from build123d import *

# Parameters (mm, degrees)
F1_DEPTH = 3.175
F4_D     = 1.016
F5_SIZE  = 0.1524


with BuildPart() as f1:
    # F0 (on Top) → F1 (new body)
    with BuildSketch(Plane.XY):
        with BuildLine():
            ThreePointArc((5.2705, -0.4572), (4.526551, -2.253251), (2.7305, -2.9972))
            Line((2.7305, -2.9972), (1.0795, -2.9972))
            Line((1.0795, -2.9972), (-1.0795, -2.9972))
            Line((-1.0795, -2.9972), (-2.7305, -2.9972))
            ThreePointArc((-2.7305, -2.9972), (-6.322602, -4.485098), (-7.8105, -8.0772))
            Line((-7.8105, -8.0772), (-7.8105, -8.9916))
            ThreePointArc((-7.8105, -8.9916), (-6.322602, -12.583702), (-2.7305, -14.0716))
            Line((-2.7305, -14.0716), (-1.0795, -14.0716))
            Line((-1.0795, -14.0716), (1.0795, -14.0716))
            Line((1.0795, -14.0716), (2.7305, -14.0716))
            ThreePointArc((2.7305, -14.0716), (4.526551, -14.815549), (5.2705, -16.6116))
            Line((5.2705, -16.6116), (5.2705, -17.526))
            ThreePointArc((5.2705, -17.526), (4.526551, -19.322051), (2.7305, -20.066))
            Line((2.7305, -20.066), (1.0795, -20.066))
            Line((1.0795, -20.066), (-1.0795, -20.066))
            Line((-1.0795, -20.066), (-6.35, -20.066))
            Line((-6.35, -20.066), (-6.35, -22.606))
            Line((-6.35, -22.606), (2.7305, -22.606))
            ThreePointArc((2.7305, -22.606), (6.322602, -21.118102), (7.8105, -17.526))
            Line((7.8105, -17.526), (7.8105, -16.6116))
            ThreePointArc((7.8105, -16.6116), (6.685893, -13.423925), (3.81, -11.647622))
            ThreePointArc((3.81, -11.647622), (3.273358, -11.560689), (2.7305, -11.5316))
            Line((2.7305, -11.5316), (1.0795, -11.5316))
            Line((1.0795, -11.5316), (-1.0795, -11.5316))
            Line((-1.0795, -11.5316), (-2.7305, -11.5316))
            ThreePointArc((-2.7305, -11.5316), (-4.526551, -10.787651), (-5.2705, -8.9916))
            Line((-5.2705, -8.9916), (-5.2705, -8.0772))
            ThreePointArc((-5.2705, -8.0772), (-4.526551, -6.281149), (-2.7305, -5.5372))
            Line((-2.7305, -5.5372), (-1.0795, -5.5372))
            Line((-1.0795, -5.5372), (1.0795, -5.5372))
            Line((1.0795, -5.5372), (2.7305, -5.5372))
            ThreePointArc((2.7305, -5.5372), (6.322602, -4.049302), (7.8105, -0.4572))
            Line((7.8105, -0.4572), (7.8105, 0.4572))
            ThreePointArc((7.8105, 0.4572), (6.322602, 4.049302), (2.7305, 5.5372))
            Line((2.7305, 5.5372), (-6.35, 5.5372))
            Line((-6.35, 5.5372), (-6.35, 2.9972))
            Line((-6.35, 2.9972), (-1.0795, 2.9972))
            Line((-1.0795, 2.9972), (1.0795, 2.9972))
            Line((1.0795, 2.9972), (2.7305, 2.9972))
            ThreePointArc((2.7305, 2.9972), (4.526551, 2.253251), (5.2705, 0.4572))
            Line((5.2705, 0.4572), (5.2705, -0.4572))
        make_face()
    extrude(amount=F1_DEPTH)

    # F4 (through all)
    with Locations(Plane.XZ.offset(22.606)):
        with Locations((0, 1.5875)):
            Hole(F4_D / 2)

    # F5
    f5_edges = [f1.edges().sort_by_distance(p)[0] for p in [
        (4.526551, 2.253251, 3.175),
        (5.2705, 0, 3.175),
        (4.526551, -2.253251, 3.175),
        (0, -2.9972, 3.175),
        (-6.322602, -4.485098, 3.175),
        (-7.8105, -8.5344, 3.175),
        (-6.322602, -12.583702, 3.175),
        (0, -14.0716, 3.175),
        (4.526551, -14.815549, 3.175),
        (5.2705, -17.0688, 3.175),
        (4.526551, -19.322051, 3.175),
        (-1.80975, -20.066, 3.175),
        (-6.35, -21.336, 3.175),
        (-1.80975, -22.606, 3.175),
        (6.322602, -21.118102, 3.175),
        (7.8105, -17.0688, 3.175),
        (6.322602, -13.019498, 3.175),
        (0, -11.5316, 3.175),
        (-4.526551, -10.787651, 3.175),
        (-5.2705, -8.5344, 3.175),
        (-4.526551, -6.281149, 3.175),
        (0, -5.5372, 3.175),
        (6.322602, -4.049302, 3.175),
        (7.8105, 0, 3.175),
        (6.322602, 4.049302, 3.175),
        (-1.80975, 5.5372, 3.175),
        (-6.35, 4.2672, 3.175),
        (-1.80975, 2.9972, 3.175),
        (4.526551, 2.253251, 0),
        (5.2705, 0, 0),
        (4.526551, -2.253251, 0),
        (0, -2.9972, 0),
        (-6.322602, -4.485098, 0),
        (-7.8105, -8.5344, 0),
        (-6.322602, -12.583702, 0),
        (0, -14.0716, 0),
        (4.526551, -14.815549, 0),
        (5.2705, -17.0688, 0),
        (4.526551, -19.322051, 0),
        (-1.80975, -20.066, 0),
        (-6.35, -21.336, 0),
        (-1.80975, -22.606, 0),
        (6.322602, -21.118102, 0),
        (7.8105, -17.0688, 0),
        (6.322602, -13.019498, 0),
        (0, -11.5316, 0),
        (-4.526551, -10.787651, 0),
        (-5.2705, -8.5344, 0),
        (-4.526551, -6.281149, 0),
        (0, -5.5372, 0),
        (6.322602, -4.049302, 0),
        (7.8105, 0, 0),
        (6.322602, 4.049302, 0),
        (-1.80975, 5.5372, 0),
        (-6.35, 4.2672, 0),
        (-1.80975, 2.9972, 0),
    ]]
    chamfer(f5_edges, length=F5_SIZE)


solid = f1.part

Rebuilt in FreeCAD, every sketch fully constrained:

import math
import FreeCAD as App
import Part
import Sketcher
Q = App.Units.Quantity


def edges_at(feature, points):
    """Names of the edges that pass closest to the given points."""
    edges = feature.Shape.Edges
    near = lambda p: min(range(len(edges)), key=lambda i: edges[i].distToShape(Part.Vertex(*p))[0])
    return sorted({f"Edge{near(p) + 1}" for p in points})

doc = App.newDocument("Part")
params = doc.addObject("Spreadsheet::Sheet", "Params")
for row, (alias, value) in enumerate([
    ("sketch1_radius", "0.1 in"),
    ("sketch1_radius2", "0.2000001 in"),
    ("sketch1_radius3", "0.2000001 in"),
    ("sketch1_radius4", "0.1 in"),
    ("sketch1_radius5", "0.1 in"),
    ("pad1_length", "0.125 in"),
    ("sketch2_diameter", "0.04 in"),
    ("hole_diameter", "0.04 in"),
    ("chamfer_size", "0.006 in"),
], start=1):
    params.set(f"A{row}", alias)
    params.set(f"B{row}", "=" + value)
    params.setAlias(f"B{row}", alias)

body = doc.addObject("PartDesign::Body", "Body")

# Sketch on XY plane
sketch1 = body.newObject("Sketcher::SketchObject", "Sketch")
sketch1.AttachmentSupport = (doc.getObject("XY_Plane"), [""])
sketch1.MapMode = "FlatFace"
sketch1.addGeometry([
    Part.ArcOfCircle(Part.Circle(App.Vector(2.730499, -0.457199, 0), App.Vector(0, 0, 1), 2.540001), math.radians(-89.999983), math.radians(-0.000017)),  # 0
    Part.LineSegment(App.Vector(2.7305, -2.9972, 0), App.Vector(-2.7305, -2.9972, 0)),  # 1
    Part.ArcOfCircle(Part.Circle(App.Vector(-2.730498, -8.077202, 0), App.Vector(0, 0, 1), 5.080002), math.radians(90.000017), math.radians(179.999983)),  # 2
    Part.LineSegment(App.Vector(-7.8105, -8.0772, 0), App.Vector(-7.8105, -8.9916, 0)),  # 3
    Part.ArcOfCircle(Part.Circle(App.Vector(-2.730498, -8.991598, 0), App.Vector(0, 0, 1), 5.080002), math.radians(-179.999983), math.radians(-90.000017)),  # 4
    Part.LineSegment(App.Vector(-2.7305, -14.0716, 0), App.Vector(2.7305, -14.0716, 0)),  # 5
    Part.ArcOfCircle(Part.Circle(App.Vector(2.730499, -16.611601, 0), App.Vector(0, 0, 1), 2.540001), math.radians(0.000017), math.radians(89.999983)),  # 6
    Part.LineSegment(App.Vector(5.2705, -16.6116, 0), App.Vector(5.2705, -17.526, 0)),  # 7
    Part.ArcOfCircle(Part.Circle(App.Vector(2.730499, -17.525999, 0), App.Vector(0, 0, 1), 2.540001), math.radians(-89.999983), math.radians(-0.000017)),  # 8
    Part.LineSegment(App.Vector(2.7305, -20.066, 0), App.Vector(-6.35, -20.066, 0)),  # 9
    Part.LineSegment(App.Vector(-6.35, -20.066, 0), App.Vector(-6.35, -22.606, 0)),  # 10
    Part.LineSegment(App.Vector(-6.35, -22.606, 0), App.Vector(2.7305, -22.606, 0)),  # 11
    Part.ArcOfCircle(Part.Circle(App.Vector(2.730498, -17.525998, 0), App.Vector(0, 0, 1), 5.080002), math.radians(-89.999983), math.radians(-0.000017)),  # 12
    Part.LineSegment(App.Vector(7.8105, -17.526, 0), App.Vector(7.8105, -16.6116, 0)),  # 13
    Part.ArcOfCircle(Part.Circle(App.Vector(2.730502, -16.611598, 0), App.Vector(0, 0, 1), 5.079998), math.radians(-0.00002), math.radians(77.731123)),  # 14
    Part.ArcOfCircle(Part.Circle(App.Vector(2.730495, -16.611637, 0), App.Vector(0, 0, 1), 5.080037), math.radians(77.731134), math.radians(89.999944)),  # 15
    Part.LineSegment(App.Vector(2.7305, -11.5316, 0), App.Vector(-2.7305, -11.5316, 0)),  # 16
    Part.ArcOfCircle(Part.Circle(App.Vector(-2.730499, -8.991599, 0), App.Vector(0, 0, 1), 2.540001), math.radians(-179.999983), math.radians(-90.000017)),  # 17
    Part.LineSegment(App.Vector(-5.2705, -8.9916, 0), App.Vector(-5.2705, -8.0772, 0)),  # 18
    Part.ArcOfCircle(Part.Circle(App.Vector(-2.730499, -8.077201, 0), App.Vector(0, 0, 1), 2.540001), math.radians(90.000017), math.radians(179.999983)),  # 19
    Part.LineSegment(App.Vector(-2.7305, -5.5372, 0), App.Vector(2.7305, -5.5372, 0)),  # 20
    Part.ArcOfCircle(Part.Circle(App.Vector(2.730498, -0.457198, 0), App.Vector(0, 0, 1), 5.080002), math.radians(-89.999983), math.radians(-0.000017)),  # 21
    Part.LineSegment(App.Vector(7.8105, -0.4572, 0), App.Vector(7.8105, 0.4572, 0)),  # 22
    Part.ArcOfCircle(Part.Circle(App.Vector(2.730498, 0.457198, 0), App.Vector(0, 0, 1), 5.080002), math.radians(0.000017), math.radians(89.999983)),  # 23
    Part.LineSegment(App.Vector(2.7305, 5.5372, 0), App.Vector(-6.35, 5.5372, 0)),  # 24
    Part.LineSegment(App.Vector(-6.35, 5.5372, 0), App.Vector(-6.35, 2.9972, 0)),  # 25
    Part.LineSegment(App.Vector(-6.35, 2.9972, 0), App.Vector(2.7305, 2.9972, 0)),  # 26
    Part.ArcOfCircle(Part.Circle(App.Vector(2.730499, 0.457199, 0), App.Vector(0, 0, 1), 2.540001), math.radians(0.000017), math.radians(89.999983)),  # 27
    Part.LineSegment(App.Vector(5.2705, 0.4572, 0), App.Vector(5.2705, -0.4572, 0)),  # 28
], False)
sketch1.addConstraint([
    Sketcher.Constraint("Coincident", 0, 1, 1, 1),
    Sketcher.Constraint("Coincident", 1, 2, 2, 1),
    Sketcher.Constraint("Coincident", 2, 2, 3, 1),
    Sketcher.Constraint("Coincident", 3, 2, 4, 1),
    Sketcher.Constraint("Coincident", 4, 2, 5, 1),
    Sketcher.Constraint("Coincident", 5, 2, 6, 2),
    Sketcher.Constraint("Coincident", 6, 1, 7, 1),
    Sketcher.Constraint("Coincident", 7, 2, 8, 2),
    Sketcher.Constraint("Coincident", 8, 1, 9, 1),
    Sketcher.Constraint("Coincident", 9, 2, 10, 1),
    Sketcher.Constraint("Coincident", 10, 2, 11, 1),
    Sketcher.Constraint("Coincident", 11, 2, 12, 1),
    Sketcher.Constraint("Coincident", 12, 2, 13, 1),
    Sketcher.Constraint("Coincident", 13, 2, 14, 1),
    Sketcher.Constraint("Coincident", 14, 2, 15, 1),
    Sketcher.Constraint("Coincident", 15, 2, 16, 1),
    Sketcher.Constraint("Coincident", 16, 2, 17, 2),
    Sketcher.Constraint("Coincident", 17, 1, 18, 1),
    Sketcher.Constraint("Coincident", 18, 2, 19, 2),
    Sketcher.Constraint("Coincident", 19, 1, 20, 1),
    Sketcher.Constraint("Coincident", 20, 2, 21, 1),
    Sketcher.Constraint("Coincident", 21, 2, 22, 1),
    Sketcher.Constraint("Coincident", 22, 2, 23, 1),
    Sketcher.Constraint("Coincident", 23, 2, 24, 1),
    Sketcher.Constraint("Coincident", 24, 2, 25, 1),
    Sketcher.Constraint("Coincident", 25, 2, 26, 1),
    Sketcher.Constraint("Coincident", 26, 2, 27, 2),
    Sketcher.Constraint("Coincident", 27, 1, 28, 1),
    Sketcher.Constraint("Coincident", 28, 2, 0, 2),
    Sketcher.Constraint("Horizontal", 1),
    Sketcher.Constraint("Vertical", 3),
    Sketcher.Constraint("Horizontal", 5),
    Sketcher.Constraint("Vertical", 7),
    Sketcher.Constraint("Horizontal", 9),
    Sketcher.Constraint("Vertical", 10),
    Sketcher.Constraint("Horizontal", 11),
    Sketcher.Constraint("Vertical", 13),
    Sketcher.Constraint("Horizontal", 16),
    Sketcher.Constraint("Vertical", 18),
    Sketcher.Constraint("Horizontal", 20),
    Sketcher.Constraint("Vertical", 22),
    Sketcher.Constraint("Horizontal", 24),
    Sketcher.Constraint("Vertical", 25),
    Sketcher.Constraint("Horizontal", 26),
    Sketcher.Constraint("Vertical", 28),
    Sketcher.Constraint("Coincident", 12, 3, 8, 3),
    Sketcher.Constraint("Coincident", 14, 3, 6, 3),
    Sketcher.Constraint("Coincident", 17, 3, 4, 3),
    Sketcher.Constraint("Coincident", 19, 3, 2, 3),
    Sketcher.Constraint("Coincident", 21, 3, 0, 3),
    Sketcher.Constraint("Coincident", 27, 3, 23, 3),
    Sketcher.Constraint("Radius", 0, Q("0.1 in")),
    Sketcher.Constraint("Radius", 2, Q("0.2000001 in")),
    Sketcher.Constraint("Radius", 4, Q("0.2000001 in")),
    Sketcher.Constraint("Radius", 6, Q("0.1 in")),
    Sketcher.Constraint("Radius", 8, Q("0.1 in")),
    Sketcher.Constraint("Radius", 12, Q("0.2000001 in")),
    Sketcher.Constraint("Radius", 17, Q("0.1 in")),
    Sketcher.Constraint("Radius", 23, Q("0.2000001 in")),
    Sketcher.Constraint("DistanceX", 2, 2, 1, 2, Q("0.2 in")),
    Sketcher.Constraint("DistanceY", 2, 2, 1, 2, Q("0.2 in")),
    Sketcher.Constraint("DistanceX", 15, 3, 6, 1, Q("0.1000002 in")),
    Sketcher.Constraint("DistanceX", 11, 2, 7, 2, Q("0.1 in")),
    Sketcher.Constraint("DistanceY", 11, 2, 7, 2, Q("0.2 in")),
    Sketcher.Constraint("DistanceX", 0, 1, 21, 2, Q("0.2 in")),
    Sketcher.Constraint("DistanceY", 0, 1, 21, 2, Q("0.1 in")),
    Sketcher.Constraint("DistanceX", 23, 2, 22, 2, Q("0.2 in")),
    Sketcher.Constraint("DistanceY", 22, 2, 23, 2, Q("0.2 in")),
    Sketcher.Constraint("DistanceX", 1, 2, 1, 1, Q("0.215 in")),
    Sketcher.Constraint("DistanceX", 5, 1, 5, 2, Q("0.215 in")),
    Sketcher.Constraint("DistanceX", 16, 2, 16, 1, Q("0.215 in")),
    Sketcher.Constraint("DistanceX", 20, 1, 20, 2, Q("0.215 in")),
    Sketcher.Constraint("DistanceY", 3, 2, 3, 1, Q("0.036 in")),
    Sketcher.Constraint("DistanceY", 7, 2, 7, 1, Q("0.036 in")),
    Sketcher.Constraint("DistanceY", 13, 1, 13, 2, Q("0.036 in")),
    Sketcher.Constraint("DistanceY", 18, 1, 18, 2, Q("0.036 in")),
    Sketcher.Constraint("DistanceY", 22, 1, 22, 2, Q("0.036 in")),
    Sketcher.Constraint("DistanceY", 28, 2, 28, 1, Q("0.036 in")),
    Sketcher.Constraint("DistanceY", 8, 3, -1, 1, Q("0.69 in")),
    Sketcher.Constraint("DistanceX", 9, 2, -1, 1, Q("0.25 in")),
    Sketcher.Constraint("DistanceY", 12, 2, -1, 1, Q("0.69 in")),
    Sketcher.Constraint("DistanceX", -1, 1, 14, 2, Q("0.15 in")),
    Sketcher.Constraint("DistanceX", 24, 2, -1, 1, Q("0.25 in")),
    Sketcher.Constraint("DistanceX", 9, 2, 9, 1, Q("0.3575 in")),
    Sketcher.Constraint("DistanceX", 11, 1, 11, 2, Q("0.3575 in")),
    Sketcher.Constraint("DistanceX", 24, 2, 24, 1, Q("0.3575 in")),
    Sketcher.Constraint("DistanceX", 26, 1, 26, 2, Q("0.3575 in")),
    Sketcher.Constraint("DistanceY", 0, 3, -1, 1, Q("0.018 in")),
    Sketcher.Constraint("DistanceY", 4, 3, -1, 1, Q("0.3539999 in")),
    Sketcher.Constraint("DistanceY", 17, 1, -1, 1, Q("0.354 in")),
    Sketcher.Constraint("DistanceY", -1, 1, 27, 1, Q("0.018 in")),
    Sketcher.Constraint("DistanceX", 4, 2, 6, 3, Q("0.215 in")),
    Sketcher.Constraint("DistanceX", -1, 1, 15, 2, Q("0.1075 in")),
    Sketcher.Constraint("DistanceX", 19, 1, -1, 1, Q("0.1075 in")),
])
sketch1.setExpression("Constraints[51]", "Params.sketch1_radius")
sketch1.setExpression("Constraints[52]", "Params.sketch1_radius2")
sketch1.setExpression("Constraints[53]", "Params.sketch1_radius3")
sketch1.setExpression("Constraints[54]", "Params.sketch1_radius4")
sketch1.setExpression("Constraints[55]", "Params.sketch1_radius5")
pad1 = body.newObject("PartDesign::Pad", "Pad")
pad1.Profile = sketch1
pad1.setExpression("Length", "Params.pad1_length")

# Sketch on XZ plane
sketch2 = body.newObject("Sketcher::SketchObject", "Sketch001")
sketch2.AttachmentSupport = (doc.getObject("XZ_Plane"), [""])
sketch2.MapMode = "FlatFace"
sketch2.AttachmentOffset = App.Placement(App.Vector(0, 0, 0.89 * 25.4), App.Rotation())
sketch2.addGeometry(Part.Circle(App.Vector(0, 1.6, 0), App.Vector(0, 0, 1), 0.5), False)
sketch2.addConstraint([
    Sketcher.Constraint("PointOnObject", 0, 3, -2),
    Sketcher.Constraint("Diameter", 0, Q("0.04 in")),
    Sketcher.Constraint("DistanceY", -1, 1, 0, 3, Q("0.0625 in")),
])
sketch2.setExpression("Constraints[1]", "Params.sketch2_diameter")
doc.recompute()
hole = body.newObject("PartDesign::Hole", "Hole")
hole.Profile = sketch2
hole.ThreadType = "None"
hole.setExpression("Diameter", "Params.hole_diameter")
hole.DepthType = "ThroughAll"
doc.recompute()

chamfer = body.newObject("PartDesign::Chamfer", "Chamfer")
chamfer.Base = (hole, edges_at(hole, [
    (4.527, 2.253, 3.175),
    (5.271, 0, 3.175),
    (4.527, -2.253, 3.175),
    (0, -2.997, 3.175),
    (-6.323, -4.485, 3.175),
    (-7.811, -8.534, 3.175),
    (-6.323, -12.584, 3.175),
    (0, -14.072, 3.175),
    (4.527, -14.816, 3.175),
    (5.271, -17.069, 3.175),
    (4.527, -19.322, 3.175),
    (-1.81, -20.066, 3.175),
    (-6.35, -21.336, 3.175),
    (-1.81, -22.606, 3.175),
    (6.323, -21.118, 3.175),
    (7.811, -17.069, 3.175),
    (6.686, -13.424, 3.175),
    (0, -11.532, 3.175),
    (-4.527, -10.788, 3.175),
    (-5.271, -8.534, 3.175),
    (-4.527, -6.281, 3.175),
    (0, -5.537, 3.175),
    (6.323, -4.049, 3.175),
    (7.811, 0, 3.175),
    (6.323, 4.049, 3.175),
    (-1.81, 5.537, 3.175),
    (-6.35, 4.267, 3.175),
    (-1.81, 2.997, 3.175),
    (4.527, 2.253, 0),
    (5.271, 0, 0),
    (4.527, -2.253, 0),
    (0, -2.997, 0),
    (-6.323, -4.485, 0),
    (-7.811, -8.534, 0),
    (-6.323, -12.584, 0),
    (0, -14.072, 0),
    (4.527, -14.816, 0),
    (5.271, -17.069, 0),
    (4.527, -19.322, 0),
    (-1.81, -20.066, 0),
    (-6.35, -21.336, 0),
    (-1.81, -22.606, 0),
    (6.323, -21.118, 0),
    (7.811, -17.069, 0),
    (6.686, -13.424, 0),
    (0, -11.532, 0),
    (-4.527, -10.788, 0),
    (-5.271, -8.534, 0),
    (-4.527, -6.281, 0),
    (0, -5.537, 0),
    (6.323, -4.049, 0),
    (7.811, 0, 0),
    (6.323, 4.049, 0),
    (-1.81, 5.537, 0),
    (-6.35, 4.267, 0),
    (-1.81, 2.997, 0),
]))
chamfer.setExpression("Size", "Params.chamfer_size")

doc.recompute()
